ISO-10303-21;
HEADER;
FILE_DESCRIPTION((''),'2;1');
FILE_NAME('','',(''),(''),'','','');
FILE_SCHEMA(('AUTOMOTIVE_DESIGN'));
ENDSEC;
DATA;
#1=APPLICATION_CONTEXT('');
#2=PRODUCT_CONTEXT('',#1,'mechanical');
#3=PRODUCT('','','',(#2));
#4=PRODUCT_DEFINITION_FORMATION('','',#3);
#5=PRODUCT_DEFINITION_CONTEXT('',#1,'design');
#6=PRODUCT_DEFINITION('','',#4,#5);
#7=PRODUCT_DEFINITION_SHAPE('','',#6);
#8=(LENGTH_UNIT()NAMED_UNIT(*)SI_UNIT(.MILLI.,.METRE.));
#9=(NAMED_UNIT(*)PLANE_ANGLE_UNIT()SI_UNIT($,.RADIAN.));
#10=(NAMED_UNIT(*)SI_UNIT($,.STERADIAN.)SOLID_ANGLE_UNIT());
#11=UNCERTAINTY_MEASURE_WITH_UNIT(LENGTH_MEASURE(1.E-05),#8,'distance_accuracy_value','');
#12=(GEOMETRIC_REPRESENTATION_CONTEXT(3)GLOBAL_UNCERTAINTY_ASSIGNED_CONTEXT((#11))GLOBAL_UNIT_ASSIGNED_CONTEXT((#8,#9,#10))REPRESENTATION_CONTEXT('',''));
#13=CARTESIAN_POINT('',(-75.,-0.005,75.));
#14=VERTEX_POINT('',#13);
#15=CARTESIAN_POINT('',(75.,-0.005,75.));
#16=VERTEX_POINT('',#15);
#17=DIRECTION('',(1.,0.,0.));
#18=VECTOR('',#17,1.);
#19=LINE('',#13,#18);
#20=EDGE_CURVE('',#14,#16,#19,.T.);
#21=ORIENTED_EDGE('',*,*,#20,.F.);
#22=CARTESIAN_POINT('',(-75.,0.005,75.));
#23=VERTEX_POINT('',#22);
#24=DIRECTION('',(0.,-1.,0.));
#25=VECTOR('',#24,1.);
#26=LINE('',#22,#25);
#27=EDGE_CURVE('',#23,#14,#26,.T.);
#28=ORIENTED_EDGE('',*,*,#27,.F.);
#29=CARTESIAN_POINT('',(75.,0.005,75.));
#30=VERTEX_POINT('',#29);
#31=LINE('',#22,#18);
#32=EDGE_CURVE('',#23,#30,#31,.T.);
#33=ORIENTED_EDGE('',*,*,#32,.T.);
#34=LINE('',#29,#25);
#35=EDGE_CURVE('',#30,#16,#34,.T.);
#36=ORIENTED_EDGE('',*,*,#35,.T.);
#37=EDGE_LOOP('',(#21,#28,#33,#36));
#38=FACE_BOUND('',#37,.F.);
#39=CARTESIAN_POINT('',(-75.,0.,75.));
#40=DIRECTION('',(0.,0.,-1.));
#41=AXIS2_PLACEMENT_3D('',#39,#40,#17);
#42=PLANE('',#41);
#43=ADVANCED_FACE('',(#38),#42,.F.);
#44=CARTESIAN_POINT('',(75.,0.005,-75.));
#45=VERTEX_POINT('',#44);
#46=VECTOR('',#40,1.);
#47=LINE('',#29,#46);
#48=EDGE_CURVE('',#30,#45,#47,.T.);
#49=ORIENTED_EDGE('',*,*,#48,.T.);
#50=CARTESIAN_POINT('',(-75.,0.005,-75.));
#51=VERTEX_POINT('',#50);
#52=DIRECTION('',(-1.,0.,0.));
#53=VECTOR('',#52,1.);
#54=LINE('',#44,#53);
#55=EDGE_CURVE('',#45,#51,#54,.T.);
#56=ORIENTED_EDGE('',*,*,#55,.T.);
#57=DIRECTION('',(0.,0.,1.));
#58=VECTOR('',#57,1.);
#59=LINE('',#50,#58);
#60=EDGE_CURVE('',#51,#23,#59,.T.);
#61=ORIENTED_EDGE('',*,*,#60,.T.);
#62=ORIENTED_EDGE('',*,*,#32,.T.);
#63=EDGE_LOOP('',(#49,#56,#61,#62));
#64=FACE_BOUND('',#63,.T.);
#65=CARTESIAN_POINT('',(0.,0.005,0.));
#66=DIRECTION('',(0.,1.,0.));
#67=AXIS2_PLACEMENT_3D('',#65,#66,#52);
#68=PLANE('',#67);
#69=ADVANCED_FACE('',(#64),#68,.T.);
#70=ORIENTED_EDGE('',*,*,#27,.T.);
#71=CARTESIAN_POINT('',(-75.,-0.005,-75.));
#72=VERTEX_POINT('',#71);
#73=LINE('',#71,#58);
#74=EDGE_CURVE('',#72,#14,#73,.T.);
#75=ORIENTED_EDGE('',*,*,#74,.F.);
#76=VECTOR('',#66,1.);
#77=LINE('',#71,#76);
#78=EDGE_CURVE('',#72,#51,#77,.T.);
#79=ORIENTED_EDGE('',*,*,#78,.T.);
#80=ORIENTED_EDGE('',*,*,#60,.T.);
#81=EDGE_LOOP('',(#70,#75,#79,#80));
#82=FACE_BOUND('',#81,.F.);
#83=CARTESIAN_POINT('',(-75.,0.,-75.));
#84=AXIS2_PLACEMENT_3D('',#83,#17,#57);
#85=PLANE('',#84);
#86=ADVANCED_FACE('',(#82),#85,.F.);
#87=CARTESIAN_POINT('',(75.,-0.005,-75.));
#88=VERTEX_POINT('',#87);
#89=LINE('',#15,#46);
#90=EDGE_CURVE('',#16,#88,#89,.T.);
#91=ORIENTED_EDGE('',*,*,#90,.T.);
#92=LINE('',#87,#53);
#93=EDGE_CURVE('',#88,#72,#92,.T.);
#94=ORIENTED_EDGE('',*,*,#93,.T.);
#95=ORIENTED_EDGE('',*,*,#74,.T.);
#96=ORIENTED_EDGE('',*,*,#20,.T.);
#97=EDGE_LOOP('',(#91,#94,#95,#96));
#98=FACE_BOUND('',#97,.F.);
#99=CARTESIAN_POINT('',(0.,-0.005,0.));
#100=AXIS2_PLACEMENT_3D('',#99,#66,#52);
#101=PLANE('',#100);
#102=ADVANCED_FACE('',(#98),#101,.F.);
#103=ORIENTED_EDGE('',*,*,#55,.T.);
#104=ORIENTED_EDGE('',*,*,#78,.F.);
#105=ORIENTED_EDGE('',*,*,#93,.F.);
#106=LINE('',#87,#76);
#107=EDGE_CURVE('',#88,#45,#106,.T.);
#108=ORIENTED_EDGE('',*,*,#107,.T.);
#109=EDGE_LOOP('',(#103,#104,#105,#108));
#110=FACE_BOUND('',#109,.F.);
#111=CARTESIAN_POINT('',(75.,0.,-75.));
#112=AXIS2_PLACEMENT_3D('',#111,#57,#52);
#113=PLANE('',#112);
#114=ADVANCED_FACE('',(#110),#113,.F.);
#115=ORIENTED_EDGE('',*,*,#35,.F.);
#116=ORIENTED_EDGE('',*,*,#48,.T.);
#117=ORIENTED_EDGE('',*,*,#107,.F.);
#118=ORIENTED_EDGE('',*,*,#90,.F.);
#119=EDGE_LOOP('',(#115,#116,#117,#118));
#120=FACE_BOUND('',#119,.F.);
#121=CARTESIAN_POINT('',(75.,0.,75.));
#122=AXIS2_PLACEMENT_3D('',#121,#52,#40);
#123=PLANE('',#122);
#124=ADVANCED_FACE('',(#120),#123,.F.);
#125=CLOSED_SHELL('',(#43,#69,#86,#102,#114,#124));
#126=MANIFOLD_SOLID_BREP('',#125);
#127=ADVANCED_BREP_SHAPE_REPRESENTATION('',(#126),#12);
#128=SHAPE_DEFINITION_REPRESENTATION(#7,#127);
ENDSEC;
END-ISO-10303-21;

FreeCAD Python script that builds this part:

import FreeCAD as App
import Part
import Sketcher

V = App.Vector
Q = App.Units.Quantity

doc = App.newDocument("Part")
body = doc.addObject("PartDesign::Body", "Body")

# Sketch on XZ plane
sketch1 = body.newObject("Sketcher::SketchObject", "Sketch")
sketch1.AttachmentSupport = (doc.getObject("XZ_Plane"), [""])
sketch1.MapMode = "FlatFace"
sketch1.addGeometry([
    Part.LineSegment(V(75, 75, 0), V(75, -75, 0)),
    Part.LineSegment(V(75, -75, 0), V(-75, -75, 0)),
    Part.LineSegment(V(-75, -75, 0), V(-75, 75, 0)),
    Part.LineSegment(V(-75, 75, 0), V(75, 75, 0)),
], False)
sketch1.addConstraint([
    Sketcher.Constraint("Coincident", 0, 2, 1, 1),
    Sketcher.Constraint("Coincident", 1, 2, 2, 1),
    Sketcher.Constraint("Coincident", 2, 2, 3, 1),
    Sketcher.Constraint("Coincident", 3, 2, 0, 1),
    Sketcher.Constraint("Vertical", 0),
    Sketcher.Constraint("Horizontal", 1),
    Sketcher.Constraint("Vertical", 2),
    Sketcher.Constraint("Horizontal", 3),
    Sketcher.Constraint("Symmetric", 0, 2, 2, 2, -1, 1),
    Sketcher.Constraint("Equal", 3, 0),
    Sketcher.Constraint("DistanceX", 1, 2, 1, 1, Q("150 mm")),
])
pad1 = body.newObject("PartDesign::Pad", "Pad")
pad1.Profile = sketch1
pad1.Length = 0.01
pad1.Midplane = True

doc.recompute()
